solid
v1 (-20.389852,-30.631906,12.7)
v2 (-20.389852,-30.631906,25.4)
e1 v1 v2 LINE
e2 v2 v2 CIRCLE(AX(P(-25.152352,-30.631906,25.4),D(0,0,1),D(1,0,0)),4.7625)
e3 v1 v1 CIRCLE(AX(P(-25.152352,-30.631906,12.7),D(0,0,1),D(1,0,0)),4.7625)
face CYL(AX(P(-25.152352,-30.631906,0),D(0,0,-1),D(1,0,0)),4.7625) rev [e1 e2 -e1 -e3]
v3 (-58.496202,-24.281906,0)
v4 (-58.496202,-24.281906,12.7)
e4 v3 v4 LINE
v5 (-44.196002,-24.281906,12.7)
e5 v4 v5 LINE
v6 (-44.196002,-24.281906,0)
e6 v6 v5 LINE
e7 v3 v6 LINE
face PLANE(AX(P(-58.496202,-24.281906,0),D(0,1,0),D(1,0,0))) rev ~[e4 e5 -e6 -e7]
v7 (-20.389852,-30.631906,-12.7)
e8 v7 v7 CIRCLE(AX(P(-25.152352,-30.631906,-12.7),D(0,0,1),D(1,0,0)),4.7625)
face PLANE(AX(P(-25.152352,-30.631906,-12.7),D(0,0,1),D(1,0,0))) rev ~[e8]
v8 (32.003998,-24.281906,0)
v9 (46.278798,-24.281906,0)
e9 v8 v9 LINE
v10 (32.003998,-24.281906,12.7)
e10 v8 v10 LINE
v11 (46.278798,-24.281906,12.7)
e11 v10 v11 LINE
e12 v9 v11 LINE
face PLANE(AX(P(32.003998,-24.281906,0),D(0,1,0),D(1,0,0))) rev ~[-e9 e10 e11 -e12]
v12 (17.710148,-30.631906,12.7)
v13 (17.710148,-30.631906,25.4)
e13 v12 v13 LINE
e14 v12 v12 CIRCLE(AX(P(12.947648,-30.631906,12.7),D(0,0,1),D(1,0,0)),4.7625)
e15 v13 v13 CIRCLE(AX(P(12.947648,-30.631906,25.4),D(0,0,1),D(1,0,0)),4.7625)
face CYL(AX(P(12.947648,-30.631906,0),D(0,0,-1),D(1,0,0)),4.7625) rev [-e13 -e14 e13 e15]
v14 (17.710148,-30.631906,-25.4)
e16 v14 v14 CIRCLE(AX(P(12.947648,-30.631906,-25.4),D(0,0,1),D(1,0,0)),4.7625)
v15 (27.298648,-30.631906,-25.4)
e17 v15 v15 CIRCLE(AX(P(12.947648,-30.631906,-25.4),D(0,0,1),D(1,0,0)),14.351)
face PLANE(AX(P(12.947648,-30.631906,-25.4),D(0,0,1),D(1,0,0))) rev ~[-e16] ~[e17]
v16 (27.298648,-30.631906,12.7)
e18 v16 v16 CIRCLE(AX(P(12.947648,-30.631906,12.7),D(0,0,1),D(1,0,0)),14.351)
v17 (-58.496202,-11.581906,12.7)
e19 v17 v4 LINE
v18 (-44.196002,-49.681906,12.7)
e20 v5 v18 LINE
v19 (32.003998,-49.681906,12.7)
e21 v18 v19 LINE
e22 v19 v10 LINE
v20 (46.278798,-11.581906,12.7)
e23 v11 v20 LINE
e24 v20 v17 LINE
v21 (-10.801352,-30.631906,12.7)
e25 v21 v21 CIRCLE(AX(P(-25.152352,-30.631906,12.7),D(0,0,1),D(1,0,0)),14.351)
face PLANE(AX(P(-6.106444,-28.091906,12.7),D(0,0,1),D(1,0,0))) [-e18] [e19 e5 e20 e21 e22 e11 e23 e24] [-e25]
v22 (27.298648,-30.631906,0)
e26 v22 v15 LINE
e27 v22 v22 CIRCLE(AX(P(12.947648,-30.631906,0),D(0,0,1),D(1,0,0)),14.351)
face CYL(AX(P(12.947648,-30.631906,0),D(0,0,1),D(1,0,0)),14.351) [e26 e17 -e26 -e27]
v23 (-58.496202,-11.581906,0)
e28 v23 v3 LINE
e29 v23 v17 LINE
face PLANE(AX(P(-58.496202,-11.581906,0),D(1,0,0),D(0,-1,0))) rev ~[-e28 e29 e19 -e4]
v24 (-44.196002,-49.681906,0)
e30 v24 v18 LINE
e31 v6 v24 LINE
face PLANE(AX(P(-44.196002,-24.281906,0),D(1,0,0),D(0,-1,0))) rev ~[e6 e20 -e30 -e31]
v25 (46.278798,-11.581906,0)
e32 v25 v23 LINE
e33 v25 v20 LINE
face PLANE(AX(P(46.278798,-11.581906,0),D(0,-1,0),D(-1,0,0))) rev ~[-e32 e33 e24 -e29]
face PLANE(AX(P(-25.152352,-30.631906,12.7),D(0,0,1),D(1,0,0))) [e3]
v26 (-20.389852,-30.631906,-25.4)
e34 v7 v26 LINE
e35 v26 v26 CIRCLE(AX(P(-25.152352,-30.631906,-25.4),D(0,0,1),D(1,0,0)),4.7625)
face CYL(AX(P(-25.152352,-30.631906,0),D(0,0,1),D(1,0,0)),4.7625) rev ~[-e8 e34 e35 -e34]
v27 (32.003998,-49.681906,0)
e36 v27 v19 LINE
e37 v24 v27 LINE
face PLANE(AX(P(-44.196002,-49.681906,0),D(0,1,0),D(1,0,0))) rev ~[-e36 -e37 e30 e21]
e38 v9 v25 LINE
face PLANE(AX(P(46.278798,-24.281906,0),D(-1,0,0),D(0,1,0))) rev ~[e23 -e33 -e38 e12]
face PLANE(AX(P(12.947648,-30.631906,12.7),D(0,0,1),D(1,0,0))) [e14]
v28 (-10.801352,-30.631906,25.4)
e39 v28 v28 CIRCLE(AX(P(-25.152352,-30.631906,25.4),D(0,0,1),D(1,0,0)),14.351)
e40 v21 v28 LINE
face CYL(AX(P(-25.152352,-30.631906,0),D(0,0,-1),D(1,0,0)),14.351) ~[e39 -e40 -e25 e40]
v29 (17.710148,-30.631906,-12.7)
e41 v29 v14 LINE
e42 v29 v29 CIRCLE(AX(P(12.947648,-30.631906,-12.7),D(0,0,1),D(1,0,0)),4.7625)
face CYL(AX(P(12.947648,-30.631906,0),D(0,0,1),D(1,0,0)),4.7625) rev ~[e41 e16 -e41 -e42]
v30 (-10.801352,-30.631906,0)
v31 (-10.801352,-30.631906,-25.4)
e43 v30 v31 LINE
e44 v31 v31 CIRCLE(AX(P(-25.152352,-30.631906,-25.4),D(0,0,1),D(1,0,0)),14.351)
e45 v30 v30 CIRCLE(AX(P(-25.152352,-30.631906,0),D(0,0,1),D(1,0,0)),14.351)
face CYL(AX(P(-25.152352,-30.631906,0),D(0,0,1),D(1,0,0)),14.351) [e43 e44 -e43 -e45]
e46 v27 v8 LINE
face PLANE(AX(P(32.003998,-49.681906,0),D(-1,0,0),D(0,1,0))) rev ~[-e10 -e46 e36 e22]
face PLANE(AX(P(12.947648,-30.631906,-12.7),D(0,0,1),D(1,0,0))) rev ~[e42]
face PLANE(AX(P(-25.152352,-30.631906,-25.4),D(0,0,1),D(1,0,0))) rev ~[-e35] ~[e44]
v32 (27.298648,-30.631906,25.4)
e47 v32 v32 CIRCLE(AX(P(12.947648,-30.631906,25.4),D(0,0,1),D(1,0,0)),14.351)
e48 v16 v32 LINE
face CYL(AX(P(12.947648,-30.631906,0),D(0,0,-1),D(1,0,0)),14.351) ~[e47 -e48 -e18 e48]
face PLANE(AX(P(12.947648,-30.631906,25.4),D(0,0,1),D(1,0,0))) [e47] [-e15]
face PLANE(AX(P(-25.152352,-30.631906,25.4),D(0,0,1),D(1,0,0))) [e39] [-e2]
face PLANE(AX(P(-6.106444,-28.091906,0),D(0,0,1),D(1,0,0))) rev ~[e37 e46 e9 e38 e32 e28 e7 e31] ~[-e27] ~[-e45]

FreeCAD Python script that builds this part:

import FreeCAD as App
import Part
import Sketcher
from FreeCAD import Vector
Q = App.Units.Quantity

doc = App.newDocument("Part")
body = doc.addObject("PartDesign::Body", "Body")

# Sketch on XY plane
sketch1 = body.newObject("Sketcher::SketchObject", "Sketch")
sketch1.AttachmentSupport = (doc.getObject("XY_Plane"), [""])
sketch1.MapMode = "FlatFace"
sketch1.addGeometry(Part.LineSegment(Vector(-44, -24, 0), Vector(-44, -50, 0)), False)
sketch1.addGeometry(Part.LineSegment(Vector(-44, -50, 0), Vector(32, -50, 0)), False)
sketch1.addGeometry(Part.LineSegment(Vector(32, -50, 0), Vector(32, -24, 0)), False)
sketch1.addGeometry(Part.LineSegment(Vector(32, -24, 0), Vector(46, -24, 0)), False)
sketch1.addGeometry(Part.LineSegment(Vector(46, -24, 0), Vector(46, -12, 0)), False)
sketch1.addGeometry(Part.LineSegment(Vector(46, -12, 0), Vector(-58, -12, 0)), False)
sketch1.addGeometry(Part.LineSegment(Vector(-58, -12, 0), Vector(-58, -24, 0)), False)
sketch1.addGeometry(Part.LineSegment(Vector(-58, -24, 0), Vector(-44, -24, 0)), False)
sketch1.addGeometry(Part.Circle(Vector(-25, -31, 0), Vector(0, 0, 1), 14), False)
sketch1.addGeometry(Part.Circle(Vector(13, -31, 0), Vector(0, 0, 1), 14), False)
sketch1.addConstraint(Sketcher.Constraint("Coincident", 0, 2, 1, 1))
sketch1.addConstraint(Sketcher.Constraint("Coincident", 1, 2, 2, 1))
sketch1.addConstraint(Sketcher.Constraint("Coincident", 2, 2, 3, 1))
sketch1.addConstraint(Sketcher.Constraint("Coincident", 3, 2, 4, 1))
sketch1.addConstraint(Sketcher.Constraint("Coincident", 4, 2, 5, 1))
sketch1.addConstraint(Sketcher.Constraint("Coincident", 5, 2, 6, 1))
sketch1.addConstraint(Sketcher.Constraint("Coincident", 6, 2, 7, 1))
sketch1.addConstraint(Sketcher.Constraint("Coincident", 7, 2, 0, 1))
sketch1.addConstraint(Sketcher.Constraint("Vertical", 0))
sketch1.addConstraint(Sketcher.Constraint("Horizontal", 1))
sketch1.addConstraint(Sketcher.Constraint("Vertical", 2))
sketch1.addConstraint(Sketcher.Constraint("Horizontal", 3))
sketch1.addConstraint(Sketcher.Constraint("Vertical", 4))
sketch1.addConstraint(Sketcher.Constraint("Horizontal", 5))
sketch1.addConstraint(Sketcher.Constraint("Vertical", 6))
sketch1.addConstraint(Sketcher.Constraint("Horizontal", 7))
sketch1.addConstraint(Sketcher.Constraint("Equal", 8, 9))
sketch1.addConstraint(Sketcher.Constraint("Horizontal", 8, 3, 9, 3))
sketch1.addConstraint(Sketcher.Constraint("Horizontal", 3, 2, 6, 2))
sketch1.addConstraint(Sketcher.Constraint("Diameter", 8, Q("1.13 in")))
sketch1.addConstraint(Sketcher.Constraint("DistanceX", 1, 1, 1, 2, Q("3 in")))
sketch1.addConstraint(Sketcher.Constraint("DistanceY", 0, 2, 0, 1, Q("1 in")))
sketch1.addConstraint(Sketcher.Constraint("DistanceY", 4, 1, 4, 2, Q("0.5 in")))
sketch1.addConstraint(Sketcher.Constraint("DistanceX", 8, 3, 9, 3, Q("1.5 in")))
sketch1.addConstraint(Sketcher.Constraint("DistanceX", 3, 1, 3, 2, Q("0.562 in")))
sketch1.addConstraint(Sketcher.Constraint("DistanceX", 5, 2, 5, 1, Q("4.125 in")))
sketch1.addConstraint(Sketcher.Constraint("DistanceX", 0, 2, -1, 1, Q("1.7400001 in")))
sketch1.addConstraint(Sketcher.Constraint("DistanceY", 0, 2, 8, 3, Q("0.75 in")))
sketch1.addConstraint(Sketcher.Constraint("DistanceX", 0, 2, 8, 3, 19.04365))
sketch1.addConstraint(Sketcher.Constraint("DistanceY", 8, 3, -1, 1, 30.631906))
pad1 = body.newObject("PartDesign::Pad", "Pad")
pad1.Profile = sketch1
pad1.Length = Q("0.5 in")

# Sketch on XY plane
sketch2 = body.newObject("Sketcher::SketchObject", "Sketch001")
sketch2.AttachmentSupport = (doc.getObject("XY_Plane"), [""])
sketch2.MapMode = "FlatFace"
sketch2.addGeometry(Part.Circle(Vector(-25.2, -30.6, 0), Vector(0, 0, 1), 14.4), False)
sketch2.addGeometry(Part.Circle(Vector(-25.2, -30.6, 0), Vector(0, 0, 1), 4.8), False)
sketch2.addGeometry(Part.Circle(Vector(12.9, -30.6, 0), Vector(0, 0, 1), 14.4), False)
sketch2.addGeometry(Part.Circle(Vector(12.9, -30.6, 0), Vector(0, 0, 1), 4.8), False)
sketch2.addConstraint(Sketcher.Constraint("Coincident", 1, 3, 0, 3))
sketch2.addConstraint(Sketcher.Constraint("Coincident", 3, 3, 2, 3))
sketch2.addConstraint(Sketcher.Constraint("Equal", 0, 2))
sketch2.addConstraint(Sketcher.Constraint("Equal", 1, 3))
sketch2.addConstraint(Sketcher.Constraint("Horizontal", 1, 3, 2, 3))
sketch2.addConstraint(Sketcher.Constraint("Diameter", 0, Q("1.13 in")))
sketch2.addConstraint(Sketcher.Constraint("Diameter", 1, Q("0.375 in")))
sketch2.addConstraint(Sketcher.Constraint("DistanceX", 0, 3, 2, 3, Q("1.5 in")))
sketch2.addConstraint(Sketcher.Constraint("DistanceX", 0, 3, -1, 1, 25.152352))
sketch2.addConstraint(Sketcher.Constraint("DistanceY", 0, 3, -1, 1, 30.631906))
pad2 = body.newObject("PartDesign::Pad", "Pad001")
pad2.Profile = sketch2
pad2.Type = "TwoLengths"
pad2.Length = Q("1 in")
pad2.Length2 = Q("1 in")

# Sketch on XY plane
sketch3 = body.newObject("Sketcher::SketchObject", "Sketch002")
sketch3.AttachmentSupport = (doc.getObject("XY_Plane"), [""])
sketch3.MapMode = "FlatFace"
sketch3.addGeometry(Part.Circle(Vector(-25.2, -30.6, 0), Vector(0, 0, 1), 4.8), False)
sketch3.addGeometry(Part.Circle(Vector(12.9, -30.6, 0), Vector(0, 0, 1), 4.8), False)
sketch3.addConstraint(Sketcher.Constraint("Equal", 0, 1))
sketch3.addConstraint(Sketcher.Constraint("Horizontal", 0, 3, 1, 3))
sketch3.addConstraint(Sketcher.Constraint("Diameter", 0, Q("0.375 in")))
sketch3.addConstraint(Sketcher.Constraint("DistanceX", 0, 3, 1, 3, Q("1.5 in")))
sketch3.addConstraint(Sketcher.Constraint("DistanceX", 0, 3, -1, 1, 25.152352))
sketch3.addConstraint(Sketcher.Constraint("DistanceY", 0, 3, -1, 1, 30.631906))
pad3 = body.newObject("PartDesign::Pad", "Pad002")
pad3.Profile = sketch3
pad3.Type = "TwoLengths"
pad3.Length = Q("0.5 in")
pad3.Length2 = Q("0.5 in")

doc.recompute()
